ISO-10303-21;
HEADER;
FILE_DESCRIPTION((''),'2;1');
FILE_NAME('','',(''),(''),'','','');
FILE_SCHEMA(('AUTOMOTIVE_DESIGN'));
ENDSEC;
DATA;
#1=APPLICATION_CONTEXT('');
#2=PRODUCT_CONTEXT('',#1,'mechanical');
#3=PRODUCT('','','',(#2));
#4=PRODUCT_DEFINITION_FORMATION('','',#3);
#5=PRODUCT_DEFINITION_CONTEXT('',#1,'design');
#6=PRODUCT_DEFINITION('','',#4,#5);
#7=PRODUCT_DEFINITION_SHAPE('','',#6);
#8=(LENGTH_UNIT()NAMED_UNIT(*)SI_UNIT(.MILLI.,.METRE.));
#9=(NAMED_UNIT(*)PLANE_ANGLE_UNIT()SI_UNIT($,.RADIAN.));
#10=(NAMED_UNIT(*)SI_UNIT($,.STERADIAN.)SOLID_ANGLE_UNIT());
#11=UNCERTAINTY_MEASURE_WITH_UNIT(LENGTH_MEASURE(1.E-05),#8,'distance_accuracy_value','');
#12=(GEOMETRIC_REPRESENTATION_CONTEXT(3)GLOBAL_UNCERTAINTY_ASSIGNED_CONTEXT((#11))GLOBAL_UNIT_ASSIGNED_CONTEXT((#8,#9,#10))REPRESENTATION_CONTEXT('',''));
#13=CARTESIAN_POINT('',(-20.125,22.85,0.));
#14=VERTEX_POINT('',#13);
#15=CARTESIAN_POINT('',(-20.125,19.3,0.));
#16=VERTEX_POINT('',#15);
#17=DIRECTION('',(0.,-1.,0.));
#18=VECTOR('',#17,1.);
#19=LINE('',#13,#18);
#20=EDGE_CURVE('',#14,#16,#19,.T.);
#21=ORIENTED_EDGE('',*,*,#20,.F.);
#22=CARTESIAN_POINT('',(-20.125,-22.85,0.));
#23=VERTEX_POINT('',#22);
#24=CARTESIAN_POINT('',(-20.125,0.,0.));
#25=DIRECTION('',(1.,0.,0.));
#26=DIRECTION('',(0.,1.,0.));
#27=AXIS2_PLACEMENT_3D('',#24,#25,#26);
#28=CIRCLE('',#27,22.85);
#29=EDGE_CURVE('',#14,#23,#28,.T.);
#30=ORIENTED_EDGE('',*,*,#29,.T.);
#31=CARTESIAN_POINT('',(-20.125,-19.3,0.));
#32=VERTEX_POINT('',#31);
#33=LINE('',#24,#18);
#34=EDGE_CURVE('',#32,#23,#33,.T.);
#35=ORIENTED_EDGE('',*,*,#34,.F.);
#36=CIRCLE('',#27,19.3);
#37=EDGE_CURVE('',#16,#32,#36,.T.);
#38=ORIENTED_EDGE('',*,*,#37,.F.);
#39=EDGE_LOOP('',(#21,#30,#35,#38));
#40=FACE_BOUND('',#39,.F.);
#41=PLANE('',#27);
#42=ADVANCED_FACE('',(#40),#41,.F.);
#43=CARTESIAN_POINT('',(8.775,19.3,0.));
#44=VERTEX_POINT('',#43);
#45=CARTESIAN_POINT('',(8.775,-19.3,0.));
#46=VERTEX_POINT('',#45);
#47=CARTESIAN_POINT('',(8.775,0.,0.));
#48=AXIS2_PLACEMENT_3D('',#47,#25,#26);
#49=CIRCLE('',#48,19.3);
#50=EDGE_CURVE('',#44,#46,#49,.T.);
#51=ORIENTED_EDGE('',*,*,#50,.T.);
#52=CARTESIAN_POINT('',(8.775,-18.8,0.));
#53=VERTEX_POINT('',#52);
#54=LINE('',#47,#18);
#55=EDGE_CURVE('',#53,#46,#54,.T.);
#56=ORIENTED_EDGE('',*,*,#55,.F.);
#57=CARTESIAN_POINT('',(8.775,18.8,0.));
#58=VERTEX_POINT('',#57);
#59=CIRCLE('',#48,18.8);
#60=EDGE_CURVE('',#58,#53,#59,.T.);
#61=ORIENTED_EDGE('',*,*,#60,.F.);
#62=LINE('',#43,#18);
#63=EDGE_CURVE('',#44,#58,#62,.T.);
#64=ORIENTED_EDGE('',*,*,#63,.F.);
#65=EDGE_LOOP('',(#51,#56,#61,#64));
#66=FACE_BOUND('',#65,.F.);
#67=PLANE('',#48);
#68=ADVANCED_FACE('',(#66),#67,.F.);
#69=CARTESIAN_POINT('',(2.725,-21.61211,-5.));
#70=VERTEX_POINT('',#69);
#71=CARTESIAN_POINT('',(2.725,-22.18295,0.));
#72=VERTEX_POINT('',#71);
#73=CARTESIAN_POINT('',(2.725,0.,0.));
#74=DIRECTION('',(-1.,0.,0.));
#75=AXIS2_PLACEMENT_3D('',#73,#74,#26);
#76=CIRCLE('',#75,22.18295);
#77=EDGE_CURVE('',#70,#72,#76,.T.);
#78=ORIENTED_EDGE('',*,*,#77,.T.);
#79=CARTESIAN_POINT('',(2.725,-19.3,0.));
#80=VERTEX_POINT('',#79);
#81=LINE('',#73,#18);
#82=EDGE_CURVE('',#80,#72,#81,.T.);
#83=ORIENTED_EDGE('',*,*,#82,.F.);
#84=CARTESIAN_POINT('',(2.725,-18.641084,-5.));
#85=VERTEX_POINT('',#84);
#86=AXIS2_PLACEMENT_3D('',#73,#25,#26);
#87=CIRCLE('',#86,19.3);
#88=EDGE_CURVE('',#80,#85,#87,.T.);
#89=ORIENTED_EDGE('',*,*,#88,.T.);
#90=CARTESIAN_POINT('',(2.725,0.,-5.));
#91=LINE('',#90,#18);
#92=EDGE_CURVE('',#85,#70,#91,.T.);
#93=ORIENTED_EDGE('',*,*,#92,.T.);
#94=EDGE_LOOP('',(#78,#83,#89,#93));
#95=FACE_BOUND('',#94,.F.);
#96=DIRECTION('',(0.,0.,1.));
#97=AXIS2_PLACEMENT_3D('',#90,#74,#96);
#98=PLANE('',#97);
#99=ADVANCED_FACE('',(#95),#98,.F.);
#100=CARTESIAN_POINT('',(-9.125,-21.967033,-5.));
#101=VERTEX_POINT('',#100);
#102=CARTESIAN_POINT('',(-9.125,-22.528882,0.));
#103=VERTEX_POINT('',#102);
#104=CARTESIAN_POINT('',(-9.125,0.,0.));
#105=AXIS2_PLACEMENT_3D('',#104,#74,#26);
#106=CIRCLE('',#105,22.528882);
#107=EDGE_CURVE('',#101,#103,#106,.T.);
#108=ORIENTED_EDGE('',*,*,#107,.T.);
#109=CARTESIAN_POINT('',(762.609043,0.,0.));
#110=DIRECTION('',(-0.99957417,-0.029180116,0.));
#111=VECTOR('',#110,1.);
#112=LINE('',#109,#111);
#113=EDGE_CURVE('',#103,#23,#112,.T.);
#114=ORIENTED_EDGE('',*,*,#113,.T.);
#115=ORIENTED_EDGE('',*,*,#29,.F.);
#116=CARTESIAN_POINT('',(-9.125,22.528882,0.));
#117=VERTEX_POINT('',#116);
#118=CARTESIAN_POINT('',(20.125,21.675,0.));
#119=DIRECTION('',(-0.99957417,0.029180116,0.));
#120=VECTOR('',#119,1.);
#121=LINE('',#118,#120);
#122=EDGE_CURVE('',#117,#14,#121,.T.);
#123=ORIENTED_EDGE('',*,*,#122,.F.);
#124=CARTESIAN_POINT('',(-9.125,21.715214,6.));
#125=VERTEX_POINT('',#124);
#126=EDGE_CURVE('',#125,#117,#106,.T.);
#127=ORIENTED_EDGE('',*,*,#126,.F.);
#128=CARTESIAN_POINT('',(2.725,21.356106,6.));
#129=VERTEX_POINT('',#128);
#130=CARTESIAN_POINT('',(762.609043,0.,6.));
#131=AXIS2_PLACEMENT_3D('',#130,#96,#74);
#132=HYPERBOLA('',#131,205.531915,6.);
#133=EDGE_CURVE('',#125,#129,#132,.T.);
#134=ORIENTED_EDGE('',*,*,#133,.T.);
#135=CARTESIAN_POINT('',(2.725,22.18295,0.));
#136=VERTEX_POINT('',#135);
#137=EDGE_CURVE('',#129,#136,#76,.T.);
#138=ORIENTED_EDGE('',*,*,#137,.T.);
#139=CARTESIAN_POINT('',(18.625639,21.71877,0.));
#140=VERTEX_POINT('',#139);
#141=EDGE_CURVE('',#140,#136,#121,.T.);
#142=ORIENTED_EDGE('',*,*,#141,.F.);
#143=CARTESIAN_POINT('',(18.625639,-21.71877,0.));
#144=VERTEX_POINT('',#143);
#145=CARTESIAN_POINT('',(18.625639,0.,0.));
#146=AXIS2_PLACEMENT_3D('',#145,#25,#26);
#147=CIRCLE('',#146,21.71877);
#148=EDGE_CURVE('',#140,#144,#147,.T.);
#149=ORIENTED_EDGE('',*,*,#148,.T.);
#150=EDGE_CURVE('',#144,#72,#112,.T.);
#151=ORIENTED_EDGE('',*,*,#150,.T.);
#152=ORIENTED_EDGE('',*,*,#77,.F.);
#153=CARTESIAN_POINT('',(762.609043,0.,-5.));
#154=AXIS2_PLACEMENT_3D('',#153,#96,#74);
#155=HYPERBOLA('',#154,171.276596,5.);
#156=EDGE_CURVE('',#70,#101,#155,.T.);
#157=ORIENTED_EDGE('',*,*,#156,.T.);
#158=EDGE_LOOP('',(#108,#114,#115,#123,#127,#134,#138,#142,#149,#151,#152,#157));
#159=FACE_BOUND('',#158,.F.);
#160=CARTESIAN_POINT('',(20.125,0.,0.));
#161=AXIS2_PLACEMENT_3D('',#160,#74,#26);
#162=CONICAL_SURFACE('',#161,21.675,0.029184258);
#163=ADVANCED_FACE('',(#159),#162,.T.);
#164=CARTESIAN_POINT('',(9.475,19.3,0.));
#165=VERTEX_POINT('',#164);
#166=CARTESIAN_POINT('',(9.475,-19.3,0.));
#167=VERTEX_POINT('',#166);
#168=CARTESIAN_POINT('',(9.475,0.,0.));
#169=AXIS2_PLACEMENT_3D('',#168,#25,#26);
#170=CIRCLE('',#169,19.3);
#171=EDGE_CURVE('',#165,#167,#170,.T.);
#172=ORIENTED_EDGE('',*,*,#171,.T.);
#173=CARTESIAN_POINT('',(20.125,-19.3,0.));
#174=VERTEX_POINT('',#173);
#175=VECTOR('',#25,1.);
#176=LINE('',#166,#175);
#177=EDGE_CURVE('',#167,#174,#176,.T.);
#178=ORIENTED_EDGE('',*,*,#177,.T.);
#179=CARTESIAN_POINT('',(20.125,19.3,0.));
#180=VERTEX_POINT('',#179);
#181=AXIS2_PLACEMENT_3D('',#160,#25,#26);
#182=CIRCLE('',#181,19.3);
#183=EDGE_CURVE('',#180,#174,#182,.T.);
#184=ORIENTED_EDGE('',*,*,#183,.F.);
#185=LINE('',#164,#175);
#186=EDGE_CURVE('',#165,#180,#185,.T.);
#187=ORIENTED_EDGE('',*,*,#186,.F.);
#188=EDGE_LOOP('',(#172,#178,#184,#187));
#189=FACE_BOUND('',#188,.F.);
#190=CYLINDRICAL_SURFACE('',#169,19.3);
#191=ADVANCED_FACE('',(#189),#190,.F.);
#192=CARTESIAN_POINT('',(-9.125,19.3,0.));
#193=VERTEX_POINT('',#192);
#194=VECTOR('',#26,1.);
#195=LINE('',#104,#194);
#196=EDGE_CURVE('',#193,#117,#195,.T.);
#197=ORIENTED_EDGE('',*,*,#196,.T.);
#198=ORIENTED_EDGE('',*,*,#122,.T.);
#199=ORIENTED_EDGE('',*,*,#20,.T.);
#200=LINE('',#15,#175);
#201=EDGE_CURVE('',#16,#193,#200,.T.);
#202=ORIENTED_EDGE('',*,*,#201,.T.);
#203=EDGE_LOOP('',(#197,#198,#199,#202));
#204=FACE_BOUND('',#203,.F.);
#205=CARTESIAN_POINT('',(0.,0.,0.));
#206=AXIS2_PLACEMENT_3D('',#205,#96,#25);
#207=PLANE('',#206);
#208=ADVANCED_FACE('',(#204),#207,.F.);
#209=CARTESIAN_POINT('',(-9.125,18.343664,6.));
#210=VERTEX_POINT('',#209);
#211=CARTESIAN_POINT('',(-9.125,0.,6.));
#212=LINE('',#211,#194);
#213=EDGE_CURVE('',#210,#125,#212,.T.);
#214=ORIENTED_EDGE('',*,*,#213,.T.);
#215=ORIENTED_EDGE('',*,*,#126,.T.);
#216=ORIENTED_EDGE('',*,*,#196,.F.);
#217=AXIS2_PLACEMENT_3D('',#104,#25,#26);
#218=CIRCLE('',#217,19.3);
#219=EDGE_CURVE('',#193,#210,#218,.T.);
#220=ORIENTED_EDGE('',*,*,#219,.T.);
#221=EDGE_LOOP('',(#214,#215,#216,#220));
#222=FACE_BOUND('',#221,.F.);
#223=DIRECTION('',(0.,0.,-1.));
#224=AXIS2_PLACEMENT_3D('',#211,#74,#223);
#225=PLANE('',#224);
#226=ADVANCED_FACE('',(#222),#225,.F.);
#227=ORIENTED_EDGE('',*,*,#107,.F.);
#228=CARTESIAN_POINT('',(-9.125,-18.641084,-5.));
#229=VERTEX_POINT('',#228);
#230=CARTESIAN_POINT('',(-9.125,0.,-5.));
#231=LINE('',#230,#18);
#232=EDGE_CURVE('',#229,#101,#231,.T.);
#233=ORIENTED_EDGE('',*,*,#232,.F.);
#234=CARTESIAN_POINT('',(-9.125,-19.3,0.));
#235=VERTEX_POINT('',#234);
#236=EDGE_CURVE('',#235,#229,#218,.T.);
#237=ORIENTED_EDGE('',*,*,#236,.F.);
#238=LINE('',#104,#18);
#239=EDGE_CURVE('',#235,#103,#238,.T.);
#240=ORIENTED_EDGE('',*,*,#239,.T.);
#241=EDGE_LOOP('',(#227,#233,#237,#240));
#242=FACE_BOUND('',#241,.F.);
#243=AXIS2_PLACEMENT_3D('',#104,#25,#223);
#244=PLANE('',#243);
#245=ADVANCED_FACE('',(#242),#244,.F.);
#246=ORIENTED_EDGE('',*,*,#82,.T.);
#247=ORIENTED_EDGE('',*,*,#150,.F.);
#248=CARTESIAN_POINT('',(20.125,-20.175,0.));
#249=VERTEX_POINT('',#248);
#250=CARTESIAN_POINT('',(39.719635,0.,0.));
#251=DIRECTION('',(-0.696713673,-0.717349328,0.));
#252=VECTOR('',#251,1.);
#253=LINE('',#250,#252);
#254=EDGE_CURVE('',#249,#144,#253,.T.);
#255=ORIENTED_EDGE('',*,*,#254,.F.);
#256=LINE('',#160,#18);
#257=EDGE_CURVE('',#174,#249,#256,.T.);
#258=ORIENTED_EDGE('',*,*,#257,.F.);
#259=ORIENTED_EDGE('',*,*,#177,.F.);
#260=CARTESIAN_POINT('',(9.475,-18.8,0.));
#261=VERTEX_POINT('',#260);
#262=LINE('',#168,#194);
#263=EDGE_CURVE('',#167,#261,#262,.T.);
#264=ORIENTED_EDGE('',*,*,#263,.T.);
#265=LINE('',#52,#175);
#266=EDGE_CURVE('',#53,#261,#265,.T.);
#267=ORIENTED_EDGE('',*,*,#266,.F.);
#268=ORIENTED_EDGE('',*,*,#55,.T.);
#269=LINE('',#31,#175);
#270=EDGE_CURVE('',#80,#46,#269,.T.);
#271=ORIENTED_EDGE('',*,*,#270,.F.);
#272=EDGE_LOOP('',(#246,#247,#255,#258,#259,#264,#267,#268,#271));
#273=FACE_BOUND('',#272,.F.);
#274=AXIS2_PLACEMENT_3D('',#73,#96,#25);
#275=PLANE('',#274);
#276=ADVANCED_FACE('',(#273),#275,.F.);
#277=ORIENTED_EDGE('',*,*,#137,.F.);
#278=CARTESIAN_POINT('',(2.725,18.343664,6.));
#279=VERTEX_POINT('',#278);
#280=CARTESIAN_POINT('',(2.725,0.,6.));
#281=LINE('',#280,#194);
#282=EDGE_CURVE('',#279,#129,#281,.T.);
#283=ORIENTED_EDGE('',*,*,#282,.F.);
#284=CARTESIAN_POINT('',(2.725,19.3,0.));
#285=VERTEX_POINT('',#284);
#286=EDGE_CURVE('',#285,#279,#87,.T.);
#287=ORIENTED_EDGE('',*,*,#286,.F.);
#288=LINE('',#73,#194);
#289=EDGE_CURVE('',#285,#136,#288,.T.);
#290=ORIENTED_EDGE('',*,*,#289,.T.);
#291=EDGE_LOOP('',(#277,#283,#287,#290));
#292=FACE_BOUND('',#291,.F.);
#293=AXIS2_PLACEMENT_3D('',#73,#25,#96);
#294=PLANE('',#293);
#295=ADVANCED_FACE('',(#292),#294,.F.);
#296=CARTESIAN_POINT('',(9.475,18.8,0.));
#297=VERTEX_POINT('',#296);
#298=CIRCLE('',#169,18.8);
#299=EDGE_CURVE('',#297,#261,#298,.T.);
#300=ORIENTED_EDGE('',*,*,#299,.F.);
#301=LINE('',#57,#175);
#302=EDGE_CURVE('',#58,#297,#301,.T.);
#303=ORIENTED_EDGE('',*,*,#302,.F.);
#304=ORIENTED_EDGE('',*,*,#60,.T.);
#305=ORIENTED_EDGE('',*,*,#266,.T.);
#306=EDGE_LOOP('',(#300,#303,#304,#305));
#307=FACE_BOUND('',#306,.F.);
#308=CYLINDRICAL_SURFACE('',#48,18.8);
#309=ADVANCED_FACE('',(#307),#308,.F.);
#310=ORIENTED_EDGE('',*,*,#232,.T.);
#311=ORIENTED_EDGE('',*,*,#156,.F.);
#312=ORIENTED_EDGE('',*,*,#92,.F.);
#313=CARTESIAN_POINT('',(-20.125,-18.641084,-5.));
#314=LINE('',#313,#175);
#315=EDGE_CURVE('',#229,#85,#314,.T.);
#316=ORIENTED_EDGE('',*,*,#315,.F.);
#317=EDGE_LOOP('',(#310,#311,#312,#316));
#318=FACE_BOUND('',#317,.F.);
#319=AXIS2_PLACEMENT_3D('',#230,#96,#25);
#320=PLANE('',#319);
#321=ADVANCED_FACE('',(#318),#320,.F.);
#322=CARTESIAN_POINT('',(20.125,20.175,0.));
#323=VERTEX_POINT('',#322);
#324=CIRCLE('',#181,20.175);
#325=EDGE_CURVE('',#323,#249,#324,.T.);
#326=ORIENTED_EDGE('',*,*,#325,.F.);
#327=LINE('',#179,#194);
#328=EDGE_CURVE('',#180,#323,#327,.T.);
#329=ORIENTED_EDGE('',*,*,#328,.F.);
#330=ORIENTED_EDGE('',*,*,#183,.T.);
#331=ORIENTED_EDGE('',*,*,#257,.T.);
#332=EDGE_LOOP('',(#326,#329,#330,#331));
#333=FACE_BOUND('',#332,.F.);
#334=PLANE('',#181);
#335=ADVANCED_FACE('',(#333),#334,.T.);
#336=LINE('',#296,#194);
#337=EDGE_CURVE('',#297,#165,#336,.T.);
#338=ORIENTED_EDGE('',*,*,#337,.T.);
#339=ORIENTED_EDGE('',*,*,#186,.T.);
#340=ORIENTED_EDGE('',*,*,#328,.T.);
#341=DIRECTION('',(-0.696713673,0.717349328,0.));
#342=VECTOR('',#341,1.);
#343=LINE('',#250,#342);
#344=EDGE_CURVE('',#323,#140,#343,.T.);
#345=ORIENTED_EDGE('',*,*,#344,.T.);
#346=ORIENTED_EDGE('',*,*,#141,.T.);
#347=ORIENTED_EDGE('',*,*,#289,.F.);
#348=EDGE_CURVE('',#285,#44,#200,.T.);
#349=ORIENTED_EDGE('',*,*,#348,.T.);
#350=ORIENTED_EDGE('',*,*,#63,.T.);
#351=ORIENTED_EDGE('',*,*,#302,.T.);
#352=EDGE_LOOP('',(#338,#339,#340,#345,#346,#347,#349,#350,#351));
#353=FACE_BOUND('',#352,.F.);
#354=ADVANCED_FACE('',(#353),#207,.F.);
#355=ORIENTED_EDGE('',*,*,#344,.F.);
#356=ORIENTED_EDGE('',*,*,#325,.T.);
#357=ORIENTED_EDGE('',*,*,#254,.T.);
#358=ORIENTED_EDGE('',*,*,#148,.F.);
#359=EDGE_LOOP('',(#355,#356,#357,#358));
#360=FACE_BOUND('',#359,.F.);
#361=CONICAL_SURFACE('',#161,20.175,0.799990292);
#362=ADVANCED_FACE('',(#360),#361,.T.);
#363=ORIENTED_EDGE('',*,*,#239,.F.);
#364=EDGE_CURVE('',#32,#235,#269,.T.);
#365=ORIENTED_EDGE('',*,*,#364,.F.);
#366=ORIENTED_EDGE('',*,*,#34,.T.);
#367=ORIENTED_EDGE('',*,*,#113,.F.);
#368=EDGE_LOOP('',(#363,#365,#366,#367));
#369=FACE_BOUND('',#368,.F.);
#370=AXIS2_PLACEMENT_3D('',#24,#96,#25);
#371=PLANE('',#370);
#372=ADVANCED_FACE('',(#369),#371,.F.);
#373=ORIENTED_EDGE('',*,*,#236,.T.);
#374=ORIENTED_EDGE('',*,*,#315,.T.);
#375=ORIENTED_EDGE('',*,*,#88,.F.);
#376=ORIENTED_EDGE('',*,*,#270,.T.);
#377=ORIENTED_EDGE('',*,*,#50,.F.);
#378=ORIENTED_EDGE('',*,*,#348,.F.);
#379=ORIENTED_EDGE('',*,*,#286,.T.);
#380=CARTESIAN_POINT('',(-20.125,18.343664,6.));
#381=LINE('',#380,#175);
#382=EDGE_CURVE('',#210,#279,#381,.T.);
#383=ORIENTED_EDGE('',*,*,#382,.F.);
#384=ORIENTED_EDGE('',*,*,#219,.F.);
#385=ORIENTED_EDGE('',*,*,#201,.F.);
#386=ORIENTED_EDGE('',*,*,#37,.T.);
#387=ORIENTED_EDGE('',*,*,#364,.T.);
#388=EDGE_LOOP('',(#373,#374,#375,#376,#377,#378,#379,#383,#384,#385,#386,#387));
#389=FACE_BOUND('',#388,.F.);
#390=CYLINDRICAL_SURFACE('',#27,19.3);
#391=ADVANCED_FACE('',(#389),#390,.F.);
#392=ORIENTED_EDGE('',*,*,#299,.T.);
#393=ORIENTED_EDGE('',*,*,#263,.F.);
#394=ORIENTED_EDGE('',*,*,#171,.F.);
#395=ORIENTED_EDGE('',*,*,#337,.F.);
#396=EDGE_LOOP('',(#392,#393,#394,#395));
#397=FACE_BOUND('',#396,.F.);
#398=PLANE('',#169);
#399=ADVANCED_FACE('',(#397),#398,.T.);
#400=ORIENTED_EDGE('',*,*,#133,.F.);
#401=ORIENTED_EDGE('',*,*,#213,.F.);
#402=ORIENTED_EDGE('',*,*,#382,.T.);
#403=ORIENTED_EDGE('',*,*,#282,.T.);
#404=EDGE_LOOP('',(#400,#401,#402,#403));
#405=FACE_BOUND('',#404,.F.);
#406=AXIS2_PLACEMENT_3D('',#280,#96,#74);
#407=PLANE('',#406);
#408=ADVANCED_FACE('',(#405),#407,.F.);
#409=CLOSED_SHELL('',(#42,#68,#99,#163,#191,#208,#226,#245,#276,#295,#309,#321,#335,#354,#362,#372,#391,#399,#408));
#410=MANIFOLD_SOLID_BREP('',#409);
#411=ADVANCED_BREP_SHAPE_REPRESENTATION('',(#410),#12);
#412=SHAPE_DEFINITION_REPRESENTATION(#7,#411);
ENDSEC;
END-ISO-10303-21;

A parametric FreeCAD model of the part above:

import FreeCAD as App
import Part
import Sketcher
from FreeCAD import Vector


def edges_at(feature, points):
    """Names of the edges that pass closest to the given points."""
    edges = feature.Shape.Edges
    near = lambda p: min(range(len(edges)), key=lambda i: edges[i].distToShape(Part.Vertex(*p))[0])
    return sorted({f"Edge{near(p) + 1}" for p in points})

doc = App.newDocument("Part")
body = doc.addObject("PartDesign::Body", "Body")

# Sketch on XY plane
sketch1 = body.newObject("Sketcher::SketchObject", "Sketch")
sketch1.AttachmentSupport = (doc.getObject("XY_Plane"), [""])
sketch1.MapMode = "FlatFace"
sketch1.addGeometry([
    Part.LineSegment(Vector(9.5, 19.3, 0), Vector(20.1, 19.3, 0)),  # 0
    Part.LineSegment(Vector(20.1, 19.3, 0), Vector(20.1, 21.7, 0)),  # 1
    Part.LineSegment(Vector(20.1, 21.7, 0), Vector(-20.1, 22.9, 0)),  # 2
    Part.LineSegment(Vector(-20.1, 22.9, 0), Vector(-20.1, 19.3, 0)),  # 3
    Part.LineSegment(Vector(-20.1, 19.3, 0), Vector(8.8, 19.3, 0)),  # 4
    Part.LineSegment(Vector(8.8, 19.3, 0), Vector(8.8, 18.8, 0)),  # 5
    Part.LineSegment(Vector(8.8, 18.8, 0), Vector(9.5, 18.8, 0)),  # 6
    Part.LineSegment(Vector(9.5, 18.8, 0), Vector(9.5, 19.3, 0)),  # 7
], False)
sketch1.addConstraint([
    Sketcher.Constraint("Coincident", 0, 2, 1, 1),
    Sketcher.Constraint("Coincident", 1, 2, 2, 1),
    Sketcher.Constraint("Coincident", 2, 2, 3, 1),
    Sketcher.Constraint("Coincident", 3, 2, 4, 1),
    Sketcher.Constraint("Coincident", 4, 2, 5, 1),
    Sketcher.Constraint("Coincident", 5, 2, 6, 1),
    Sketcher.Constraint("Coincident", 6, 2, 7, 1),
    Sketcher.Constraint("Coincident", 7, 2, 0, 1),
    Sketcher.Constraint("Horizontal", 0),
    Sketcher.Constraint("Vertical", 1),
    Sketcher.Constraint("Vertical", 3),
    Sketcher.Constraint("Horizontal", 4),
    Sketcher.Constraint("Vertical", 5),
    Sketcher.Constraint("Horizontal", 6),
    Sketcher.Constraint("Vertical", 7),
    Sketcher.Constraint("Symmetric", 0, 2, 3, 2, -2),
    Sketcher.Constraint("DistanceX", 6, 1, 6, 2, 0.7),
    Sketcher.Constraint("DistanceY", 5, 2, 5, 1, 0.5),
    Sketcher.Constraint("DistanceY", -1, 1, 0, 2, 19.3),
    Sketcher.Constraint("DistanceY", -1, 1, 2, 2, 22.85),
    Sketcher.Constraint("DistanceX", 2, 2, 1, 2, 40.25),
    Sketcher.Constraint("DistanceX", 4, 2, 0, 2, 11.35),
    Sketcher.Constraint("DistanceY", -1, 1, 1, 2, 21.675),
])
revolution = body.newObject("PartDesign::Revolution", "Revolution")
revolution.Profile = sketch1
revolution.ReferenceAxis = (sketch1, ["H_Axis"])
revolution.Angle = 270

# Sketch on XZ plane
sketch2 = body.newObject("Sketcher::SketchObject", "Sketch001")
sketch2.AttachmentSupport = (doc.getObject("XZ_Plane"), [""])
sketch2.MapMode = "FlatFace"
sketch2.addGeometry([
    Part.LineSegment(Vector(-20, -23, 0), Vector(-20, 0, 0)),  # 0
    Part.LineSegment(Vector(-20, 0, 0), Vector(-9, 0, 0)),  # 1
    Part.LineSegment(Vector(-9, 0, 0), Vector(-9, -5, 0)),  # 2
    Part.LineSegment(Vector(-9, -5, 0), Vector(3, -5, 0)),  # 3
    Part.LineSegment(Vector(3, -5, 0), Vector(3, 0, 0)),  # 4
    Part.LineSegment(Vector(3, 0, 0), Vector(20, 0, 0)),  # 5
    Part.LineSegment(Vector(20, 0, 0), Vector(20, -22, 0)),  # 6
    Part.LineSegment(Vector(20, -22, 0), Vector(-20, -23, 0)),  # 7
], False)
sketch2.addConstraint([
    Sketcher.Constraint("Coincident", 0, 2, 1, 1),
    Sketcher.Constraint("Coincident", 1, 2, 2, 1),
    Sketcher.Constraint("Coincident", 2, 2, 3, 1),
    Sketcher.Constraint("Coincident", 3, 2, 4, 1),
    Sketcher.Constraint("Coincident", 4, 2, 5, 1),
    Sketcher.Constraint("Coincident", 5, 2, 6, 1),
    Sketcher.Constraint("Coincident", 6, 2, 7, 1),
    Sketcher.Constraint("Coincident", 7, 2, 0, 1),
    Sketcher.Constraint("Vertical", 0),
    Sketcher.Constraint("Horizontal", 1),
    Sketcher.Constraint("Vertical", 2),
    Sketcher.Constraint("Horizontal", 3),
    Sketcher.Constraint("Vertical", 4),
    Sketcher.Constraint("Horizontal", 5),
    Sketcher.Constraint("Vertical", 6),
    Sketcher.Constraint("Symmetric", 0, 2, 5, 2, -1, 1),
    Sketcher.Constraint("PointOnObject", 0, 2, -1),
    Sketcher.Constraint("DistanceX", 1, 1, 1, 2, 11.0),
    Sketcher.Constraint("DistanceY", 2, 2, 2, 1, 5.0),
    Sketcher.Constraint("DistanceX", 3, 1, 3, 2, 11.85),
    Sketcher.Constraint("DistanceX", 5, 1, 5, 2, 17.4),
    Sketcher.Constraint("DistanceY", 0, 1, 0, 2, 22.85),
    Sketcher.Constraint("DistanceY", 6, 2, 6, 1, 21.675),
])
pocket1 = body.newObject("PartDesign::Pocket", "Pocket")
pocket1.Profile = sketch2
pocket1.Length = 200
pocket1.Reversed = True

# Sketch on XZ plane
sketch3 = body.newObject("Sketcher::SketchObject", "Sketch002")
sketch3.AttachmentSupport = (doc.getObject("XZ_Plane"), [""])
sketch3.MapMode = "FlatFace"
sketch3.addGeometry([
    Part.LineSegment(Vector(3, 6, 0), Vector(3, 0, 0)),
    Part.LineSegment(Vector(3, 0, 0), Vector(-9, 0, 0)),
    Part.LineSegment(Vector(-9, 0, 0), Vector(-9, 6, 0)),
    Part.LineSegment(Vector(-9, 6, 0), Vector(3, 6, 0)),
], False)
sketch3.addConstraint([
    Sketcher.Constraint("Coincident", 0, 2, 1, 1),
    Sketcher.Constraint("Coincident", 1, 2, 2, 1),
    Sketcher.Constraint("Coincident", 2, 2, 3, 1),
    Sketcher.Constraint("Coincident", 3, 2, 0, 1),
    Sketcher.Constraint("Vertical", 0),
    Sketcher.Constraint("Horizontal", 1),
    Sketcher.Constraint("Vertical", 2),
    Sketcher.Constraint("Horizontal", 3),
    Sketcher.Constraint("PointOnObject", 0, 2, -1),
    Sketcher.Constraint("DistanceY", 0, 2, 0, 1, 6.0),
    Sketcher.Constraint("DistanceX", 1, 2, 1, 1, 11.85),
    Sketcher.Constraint("DistanceX", -1, 1, 0, 2, 2.725),
])
pocket2 = body.newObject("PartDesign::Pocket", "Pocket001")
pocket2.Profile = sketch3
pocket2.Length = 200
doc.recompute()

chamfer = body.newObject("PartDesign::Chamfer", "Chamfer")
chamfer.Base = (pocket2, edges_at(pocket2, [(20.125, 0, 21.675)]))
chamfer.Size = 1.5

doc.recompute()
